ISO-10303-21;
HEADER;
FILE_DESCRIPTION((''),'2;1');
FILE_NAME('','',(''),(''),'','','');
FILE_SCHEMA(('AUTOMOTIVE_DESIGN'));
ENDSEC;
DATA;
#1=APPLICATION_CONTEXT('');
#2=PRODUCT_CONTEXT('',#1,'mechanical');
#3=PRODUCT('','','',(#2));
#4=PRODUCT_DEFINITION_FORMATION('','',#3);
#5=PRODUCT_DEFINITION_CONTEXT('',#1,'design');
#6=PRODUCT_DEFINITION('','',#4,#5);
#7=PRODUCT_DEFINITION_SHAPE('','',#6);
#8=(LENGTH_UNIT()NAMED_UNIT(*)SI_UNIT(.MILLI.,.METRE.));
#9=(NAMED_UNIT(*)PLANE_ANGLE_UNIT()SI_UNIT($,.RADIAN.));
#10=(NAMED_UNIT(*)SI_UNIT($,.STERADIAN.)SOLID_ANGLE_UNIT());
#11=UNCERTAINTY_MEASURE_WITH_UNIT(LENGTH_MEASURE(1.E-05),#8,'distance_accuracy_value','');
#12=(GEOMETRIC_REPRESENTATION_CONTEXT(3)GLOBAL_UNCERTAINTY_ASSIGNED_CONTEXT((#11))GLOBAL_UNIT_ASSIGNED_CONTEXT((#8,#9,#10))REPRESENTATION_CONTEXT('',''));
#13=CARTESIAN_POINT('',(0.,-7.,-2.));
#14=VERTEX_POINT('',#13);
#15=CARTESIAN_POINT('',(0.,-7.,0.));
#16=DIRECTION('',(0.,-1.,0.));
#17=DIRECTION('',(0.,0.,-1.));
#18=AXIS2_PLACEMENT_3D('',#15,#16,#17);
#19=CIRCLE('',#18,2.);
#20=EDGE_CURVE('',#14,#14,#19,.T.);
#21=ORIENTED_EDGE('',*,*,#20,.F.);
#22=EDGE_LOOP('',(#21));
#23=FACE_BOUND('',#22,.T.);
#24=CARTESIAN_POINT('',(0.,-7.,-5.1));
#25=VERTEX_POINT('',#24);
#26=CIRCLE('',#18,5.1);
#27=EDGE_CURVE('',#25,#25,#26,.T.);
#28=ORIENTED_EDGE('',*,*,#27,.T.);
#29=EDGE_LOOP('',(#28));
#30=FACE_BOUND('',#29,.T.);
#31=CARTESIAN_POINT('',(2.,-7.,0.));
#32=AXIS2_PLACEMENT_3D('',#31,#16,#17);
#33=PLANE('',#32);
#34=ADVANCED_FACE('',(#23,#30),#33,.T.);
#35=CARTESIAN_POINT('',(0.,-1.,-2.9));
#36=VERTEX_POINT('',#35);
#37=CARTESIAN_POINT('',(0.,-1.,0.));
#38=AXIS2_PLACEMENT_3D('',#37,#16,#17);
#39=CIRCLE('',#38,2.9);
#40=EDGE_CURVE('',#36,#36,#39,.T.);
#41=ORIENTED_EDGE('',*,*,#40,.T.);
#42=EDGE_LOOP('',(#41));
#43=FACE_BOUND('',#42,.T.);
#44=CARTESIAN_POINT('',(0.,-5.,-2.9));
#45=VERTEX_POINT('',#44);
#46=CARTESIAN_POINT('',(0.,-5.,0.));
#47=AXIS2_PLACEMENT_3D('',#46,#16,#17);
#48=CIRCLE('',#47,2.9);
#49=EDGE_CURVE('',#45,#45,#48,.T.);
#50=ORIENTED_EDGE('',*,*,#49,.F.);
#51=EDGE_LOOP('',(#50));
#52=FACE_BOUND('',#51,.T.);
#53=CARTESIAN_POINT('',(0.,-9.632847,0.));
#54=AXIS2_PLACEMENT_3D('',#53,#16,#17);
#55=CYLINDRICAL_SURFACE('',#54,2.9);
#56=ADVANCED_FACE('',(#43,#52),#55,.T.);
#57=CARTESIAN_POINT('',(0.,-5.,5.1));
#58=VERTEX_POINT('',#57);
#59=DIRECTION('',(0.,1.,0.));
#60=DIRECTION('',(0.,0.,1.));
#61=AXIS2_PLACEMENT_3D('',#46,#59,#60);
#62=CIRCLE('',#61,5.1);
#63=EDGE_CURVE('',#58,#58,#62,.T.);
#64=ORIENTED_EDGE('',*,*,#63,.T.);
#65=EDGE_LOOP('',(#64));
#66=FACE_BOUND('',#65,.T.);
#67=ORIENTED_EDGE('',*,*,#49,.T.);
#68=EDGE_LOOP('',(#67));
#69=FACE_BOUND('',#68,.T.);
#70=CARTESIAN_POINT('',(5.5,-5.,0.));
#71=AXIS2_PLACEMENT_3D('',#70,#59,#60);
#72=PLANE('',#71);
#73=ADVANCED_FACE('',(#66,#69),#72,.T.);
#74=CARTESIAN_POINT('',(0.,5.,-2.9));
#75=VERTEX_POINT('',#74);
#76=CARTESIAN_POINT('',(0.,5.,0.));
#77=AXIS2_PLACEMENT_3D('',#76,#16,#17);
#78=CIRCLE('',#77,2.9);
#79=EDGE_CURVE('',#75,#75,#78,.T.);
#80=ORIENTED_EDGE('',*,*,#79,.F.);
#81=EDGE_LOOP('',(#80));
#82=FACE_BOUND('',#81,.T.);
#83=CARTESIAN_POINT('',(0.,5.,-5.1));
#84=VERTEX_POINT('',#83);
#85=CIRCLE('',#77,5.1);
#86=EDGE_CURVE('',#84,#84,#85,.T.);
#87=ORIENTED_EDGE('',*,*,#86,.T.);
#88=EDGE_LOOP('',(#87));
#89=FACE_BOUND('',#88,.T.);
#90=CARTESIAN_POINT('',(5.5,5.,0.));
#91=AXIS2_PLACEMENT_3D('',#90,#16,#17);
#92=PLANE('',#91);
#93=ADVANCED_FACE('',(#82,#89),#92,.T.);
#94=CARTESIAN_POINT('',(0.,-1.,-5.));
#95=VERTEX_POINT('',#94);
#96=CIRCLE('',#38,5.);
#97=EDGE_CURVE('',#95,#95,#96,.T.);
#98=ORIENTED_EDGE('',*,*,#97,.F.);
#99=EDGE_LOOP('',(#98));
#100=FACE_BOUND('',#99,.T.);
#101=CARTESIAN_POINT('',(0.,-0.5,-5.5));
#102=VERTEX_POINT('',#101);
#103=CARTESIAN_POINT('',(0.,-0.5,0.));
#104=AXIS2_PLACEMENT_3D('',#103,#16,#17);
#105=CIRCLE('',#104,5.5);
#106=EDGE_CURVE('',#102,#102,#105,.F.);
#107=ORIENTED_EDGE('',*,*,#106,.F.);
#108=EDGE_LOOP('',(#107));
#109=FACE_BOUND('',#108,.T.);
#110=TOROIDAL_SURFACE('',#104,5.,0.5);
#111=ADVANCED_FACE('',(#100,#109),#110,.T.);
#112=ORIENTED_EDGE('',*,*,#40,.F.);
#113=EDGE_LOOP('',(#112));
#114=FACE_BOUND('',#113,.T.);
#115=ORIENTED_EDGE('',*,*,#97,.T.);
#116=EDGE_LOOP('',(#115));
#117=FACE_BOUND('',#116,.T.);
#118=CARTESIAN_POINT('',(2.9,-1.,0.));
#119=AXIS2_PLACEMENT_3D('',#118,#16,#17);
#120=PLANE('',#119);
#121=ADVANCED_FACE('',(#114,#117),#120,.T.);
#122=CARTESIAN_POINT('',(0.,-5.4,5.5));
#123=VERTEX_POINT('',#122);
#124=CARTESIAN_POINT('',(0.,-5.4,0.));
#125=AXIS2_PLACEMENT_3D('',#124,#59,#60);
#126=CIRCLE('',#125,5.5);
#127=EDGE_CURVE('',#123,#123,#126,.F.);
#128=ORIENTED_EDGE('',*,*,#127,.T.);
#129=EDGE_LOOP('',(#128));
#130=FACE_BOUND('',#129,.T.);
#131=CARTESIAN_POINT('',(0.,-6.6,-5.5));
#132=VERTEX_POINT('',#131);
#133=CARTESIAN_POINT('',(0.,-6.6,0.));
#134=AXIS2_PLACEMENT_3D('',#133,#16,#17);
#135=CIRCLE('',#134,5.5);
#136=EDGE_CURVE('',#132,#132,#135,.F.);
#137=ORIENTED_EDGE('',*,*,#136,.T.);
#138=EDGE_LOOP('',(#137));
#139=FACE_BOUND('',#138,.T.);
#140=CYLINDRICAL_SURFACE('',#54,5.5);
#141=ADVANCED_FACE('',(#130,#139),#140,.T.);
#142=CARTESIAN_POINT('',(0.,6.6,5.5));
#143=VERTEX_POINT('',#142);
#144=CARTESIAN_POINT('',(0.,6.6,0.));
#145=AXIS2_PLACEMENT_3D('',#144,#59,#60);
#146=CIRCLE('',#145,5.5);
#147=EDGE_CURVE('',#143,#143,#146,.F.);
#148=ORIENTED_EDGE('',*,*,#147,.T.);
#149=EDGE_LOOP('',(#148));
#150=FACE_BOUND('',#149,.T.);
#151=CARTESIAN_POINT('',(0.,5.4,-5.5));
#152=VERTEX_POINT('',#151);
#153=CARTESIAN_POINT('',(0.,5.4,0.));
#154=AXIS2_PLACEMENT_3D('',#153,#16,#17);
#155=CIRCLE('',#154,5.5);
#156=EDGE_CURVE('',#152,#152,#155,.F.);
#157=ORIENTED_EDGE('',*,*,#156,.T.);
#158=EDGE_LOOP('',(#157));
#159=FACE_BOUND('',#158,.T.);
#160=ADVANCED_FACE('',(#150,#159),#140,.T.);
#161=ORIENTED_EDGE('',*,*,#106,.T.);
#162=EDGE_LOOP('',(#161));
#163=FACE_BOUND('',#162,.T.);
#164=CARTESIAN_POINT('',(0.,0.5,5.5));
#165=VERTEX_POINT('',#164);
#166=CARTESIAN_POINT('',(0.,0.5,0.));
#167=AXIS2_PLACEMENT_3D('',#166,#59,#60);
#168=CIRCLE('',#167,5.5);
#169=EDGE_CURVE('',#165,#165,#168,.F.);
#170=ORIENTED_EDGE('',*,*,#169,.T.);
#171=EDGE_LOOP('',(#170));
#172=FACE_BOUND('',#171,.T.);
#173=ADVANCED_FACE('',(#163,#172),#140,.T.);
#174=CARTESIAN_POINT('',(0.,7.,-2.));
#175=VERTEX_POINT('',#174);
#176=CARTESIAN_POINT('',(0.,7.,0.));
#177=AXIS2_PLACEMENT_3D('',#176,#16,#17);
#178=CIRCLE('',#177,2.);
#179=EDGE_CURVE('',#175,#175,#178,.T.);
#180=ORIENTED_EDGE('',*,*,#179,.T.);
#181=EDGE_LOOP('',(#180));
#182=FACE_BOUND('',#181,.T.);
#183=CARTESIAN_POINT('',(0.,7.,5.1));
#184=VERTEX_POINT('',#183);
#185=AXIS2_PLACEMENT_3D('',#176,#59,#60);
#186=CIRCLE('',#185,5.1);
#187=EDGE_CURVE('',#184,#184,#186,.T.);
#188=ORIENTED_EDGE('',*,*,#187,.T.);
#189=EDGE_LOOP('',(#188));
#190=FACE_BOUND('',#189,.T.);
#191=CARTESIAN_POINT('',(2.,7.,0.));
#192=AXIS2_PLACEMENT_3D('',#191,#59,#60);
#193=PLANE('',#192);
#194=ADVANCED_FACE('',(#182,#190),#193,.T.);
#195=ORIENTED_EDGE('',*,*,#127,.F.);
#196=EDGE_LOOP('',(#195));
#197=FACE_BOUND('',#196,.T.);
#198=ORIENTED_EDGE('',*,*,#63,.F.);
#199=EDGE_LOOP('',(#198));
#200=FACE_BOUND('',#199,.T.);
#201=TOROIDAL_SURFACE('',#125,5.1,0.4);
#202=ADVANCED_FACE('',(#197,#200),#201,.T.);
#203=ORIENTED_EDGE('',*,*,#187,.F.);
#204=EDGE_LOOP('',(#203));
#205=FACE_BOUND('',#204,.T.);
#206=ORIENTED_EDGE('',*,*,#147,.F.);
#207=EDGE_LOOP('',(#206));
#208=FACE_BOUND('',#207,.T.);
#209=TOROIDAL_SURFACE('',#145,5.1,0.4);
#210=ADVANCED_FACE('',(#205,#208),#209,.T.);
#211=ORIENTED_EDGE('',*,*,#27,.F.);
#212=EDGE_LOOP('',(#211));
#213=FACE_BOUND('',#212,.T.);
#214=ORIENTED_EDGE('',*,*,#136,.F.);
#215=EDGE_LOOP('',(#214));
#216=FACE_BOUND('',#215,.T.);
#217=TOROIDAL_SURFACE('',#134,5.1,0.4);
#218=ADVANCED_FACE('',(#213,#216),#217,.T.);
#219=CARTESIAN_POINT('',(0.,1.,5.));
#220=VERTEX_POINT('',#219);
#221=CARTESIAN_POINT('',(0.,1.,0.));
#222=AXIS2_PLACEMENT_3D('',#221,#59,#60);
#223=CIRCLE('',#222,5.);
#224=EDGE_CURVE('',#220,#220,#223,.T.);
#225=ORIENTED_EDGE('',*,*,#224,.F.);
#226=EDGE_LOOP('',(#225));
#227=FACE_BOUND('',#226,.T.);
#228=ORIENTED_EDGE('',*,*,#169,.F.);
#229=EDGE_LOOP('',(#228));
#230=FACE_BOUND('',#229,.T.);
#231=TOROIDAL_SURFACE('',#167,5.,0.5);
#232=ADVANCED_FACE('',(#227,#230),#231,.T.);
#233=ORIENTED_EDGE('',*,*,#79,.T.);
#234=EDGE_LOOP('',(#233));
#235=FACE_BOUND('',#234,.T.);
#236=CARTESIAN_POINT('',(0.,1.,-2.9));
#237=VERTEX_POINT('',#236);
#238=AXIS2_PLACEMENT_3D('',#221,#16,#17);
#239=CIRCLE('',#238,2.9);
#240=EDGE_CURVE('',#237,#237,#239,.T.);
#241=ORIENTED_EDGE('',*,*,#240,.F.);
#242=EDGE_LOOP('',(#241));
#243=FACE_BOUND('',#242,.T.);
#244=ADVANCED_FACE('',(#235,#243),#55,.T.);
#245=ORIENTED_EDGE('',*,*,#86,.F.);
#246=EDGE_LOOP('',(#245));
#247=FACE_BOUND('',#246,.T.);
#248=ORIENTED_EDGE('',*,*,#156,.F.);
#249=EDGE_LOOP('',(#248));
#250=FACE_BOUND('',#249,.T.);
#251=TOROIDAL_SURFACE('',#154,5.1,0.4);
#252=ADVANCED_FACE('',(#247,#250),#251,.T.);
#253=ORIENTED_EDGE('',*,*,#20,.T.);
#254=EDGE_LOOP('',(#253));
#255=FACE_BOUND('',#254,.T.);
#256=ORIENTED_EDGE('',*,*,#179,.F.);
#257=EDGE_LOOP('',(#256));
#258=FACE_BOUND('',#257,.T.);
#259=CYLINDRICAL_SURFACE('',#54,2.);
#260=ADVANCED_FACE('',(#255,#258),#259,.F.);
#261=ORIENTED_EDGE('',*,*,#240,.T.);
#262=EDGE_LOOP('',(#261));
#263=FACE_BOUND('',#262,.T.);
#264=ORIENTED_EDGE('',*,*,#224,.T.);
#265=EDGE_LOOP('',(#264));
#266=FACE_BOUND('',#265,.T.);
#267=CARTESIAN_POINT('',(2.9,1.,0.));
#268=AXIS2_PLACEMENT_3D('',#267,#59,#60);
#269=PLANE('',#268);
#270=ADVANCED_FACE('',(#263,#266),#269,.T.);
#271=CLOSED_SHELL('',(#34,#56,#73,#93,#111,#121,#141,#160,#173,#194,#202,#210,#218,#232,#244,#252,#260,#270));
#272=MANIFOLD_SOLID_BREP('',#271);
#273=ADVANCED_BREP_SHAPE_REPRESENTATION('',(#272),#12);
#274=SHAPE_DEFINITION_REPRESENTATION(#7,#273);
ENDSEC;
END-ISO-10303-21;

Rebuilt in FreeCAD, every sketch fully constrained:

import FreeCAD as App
import Part
import Sketcher
from FreeCAD import Vector
Q = App.Units.Quantity


def edges_at(feature, points):
    """Names of the edges that pass closest to the given points."""
    edges = feature.Shape.Edges
    near = lambda p: min(range(len(edges)), key=lambda i: edges[i].distToShape(Part.Vertex(*p))[0])
    return sorted({f"Edge{near(p) + 1}" for p in points})


def add_polygon(sketch, points):
    """Adds a closed chain of lines whose ends are joined by coincident constraints."""
    first, n = sketch.GeometryCount, len(points)
    for a, b in zip(points, points[1:] + points[:1]):
        sketch.addGeometry(Part.LineSegment(App.Vector(*a, 0), App.Vector(*b, 0)), False)
    for i in range(n):
        sketch.addConstraint(Sketcher.Constraint("Coincident", first + i, 2, first + (i + 1) % n, 1))

doc = App.newDocument("Part")
params = doc.addObject("Spreadsheet::Sheet", "Params")
for row, (alias, value) in enumerate([
    ("sketch1_height", "14 mm"),
    ("sketch1_height2", "2 mm"),
    ("sketch1_width", "3.5 mm"),
    ("sketch1_width2", "2.6 mm"),
    ("revolution_angle", "360 deg"),
    ("fillet_radius", "0.5 mm"),
    ("fillet2_radius", "0.4 mm"),
], start=1):
    params.set(f"A{row}", alias)
    params.set(f"B{row}", "=" + value)
    params.setAlias(f"B{row}", alias)

body = doc.addObject("PartDesign::Body", "Body")

# Sketch on XY plane
sketch1 = doc.addObject("Sketcher::SketchObject", "Sketch")
body.addObject(sketch1)
sketch1.AttachmentSupport = (doc.XY_Plane, [""])
sketch1.MapMode = "FlatFace"
add_polygon(sketch1, [(5.5, 7), (2, 7), (2, -7), (5.5, -7), (5.5, -5), (2.9, -5), (2.9, -1), (5.5, -1), (5.5, 1), (2.9, 1), (2.9, 5), (5.5, 5)])  # lines 0-11
sketch1.addConstraint([
    Sketcher.Constraint("Horizontal", 0),
    Sketcher.Constraint("Vertical", 1),
    Sketcher.Constraint("Horizontal", 2),
    Sketcher.Constraint("Vertical", 3),
    Sketcher.Constraint("Horizontal", 4),
    Sketcher.Constraint("Vertical", 5),
    Sketcher.Constraint("Horizontal", 6),
    Sketcher.Constraint("Vertical", 7),
    Sketcher.Constraint("Horizontal", 8),
    Sketcher.Constraint("Vertical", 9),
    Sketcher.Constraint("Horizontal", 10),
    Sketcher.Constraint("Vertical", 11),
    Sketcher.Constraint("Symmetric", 5, 2, 8, 2, -1),
    Sketcher.Constraint("Symmetric", 3, 2, 10, 2, -1),
    Sketcher.Constraint("Vertical", 3, 2, 6, 2),
    Sketcher.Constraint("Equal", 3, 7),
    Sketcher.Constraint("Equal", 7, 11),
    Sketcher.Constraint("DistanceY", 1, 2, 1, 1, Q("14 mm")),
    Sketcher.Constraint("DistanceY", 3, 1, 3, 2, Q("2 mm")),
    Sketcher.Constraint("DistanceX", 0, 2, 0, 1, Q("3.5 mm")),
    Sketcher.Constraint("DistanceX", 4, 2, 4, 1, Q("2.6 mm")),
    Sketcher.Constraint("DistanceX", -1, 1, 0, 2, Q("2 mm")),
])
sketch1.setExpression("Constraints[29]", "Params.sketch1_height")
sketch1.setExpression("Constraints[30]", "Params.sketch1_height2")
sketch1.setExpression("Constraints[31]", "Params.sketch1_width")
sketch1.setExpression("Constraints[32]", "Params.sketch1_width2")
revolution = doc.addObject("PartDesign::Revolution", "Revolution")
body.addObject(revolution)
revolution.Profile = sketch1
revolution.ReferenceAxis = (sketch1, ["V_Axis"])
revolution.setExpression("Angle", "Params.revolution_angle")
doc.recompute()

fillet = doc.addObject("PartDesign::Fillet", "Fillet")
body.addObject(fillet)
fillet.Base = (revolution, edges_at(revolution, [(0, 1, 5.5), (0, -1, 5.5)]))
fillet.setExpression("Radius", "Params.fillet_radius")
doc.recompute()

fillet2 = doc.addObject("PartDesign::Fillet", "Fillet001")
body.addObject(fillet2)
fillet2.Base = (fillet, edges_at(fillet, [
    (0, 5, 5.5),
    (0, -5, 5.5),
    (0, -7, 5.5),
    (0, 7, 5.5),
]))
fillet2.setExpression("Radius", "Params.fillet2_radius")

doc.recompute()
